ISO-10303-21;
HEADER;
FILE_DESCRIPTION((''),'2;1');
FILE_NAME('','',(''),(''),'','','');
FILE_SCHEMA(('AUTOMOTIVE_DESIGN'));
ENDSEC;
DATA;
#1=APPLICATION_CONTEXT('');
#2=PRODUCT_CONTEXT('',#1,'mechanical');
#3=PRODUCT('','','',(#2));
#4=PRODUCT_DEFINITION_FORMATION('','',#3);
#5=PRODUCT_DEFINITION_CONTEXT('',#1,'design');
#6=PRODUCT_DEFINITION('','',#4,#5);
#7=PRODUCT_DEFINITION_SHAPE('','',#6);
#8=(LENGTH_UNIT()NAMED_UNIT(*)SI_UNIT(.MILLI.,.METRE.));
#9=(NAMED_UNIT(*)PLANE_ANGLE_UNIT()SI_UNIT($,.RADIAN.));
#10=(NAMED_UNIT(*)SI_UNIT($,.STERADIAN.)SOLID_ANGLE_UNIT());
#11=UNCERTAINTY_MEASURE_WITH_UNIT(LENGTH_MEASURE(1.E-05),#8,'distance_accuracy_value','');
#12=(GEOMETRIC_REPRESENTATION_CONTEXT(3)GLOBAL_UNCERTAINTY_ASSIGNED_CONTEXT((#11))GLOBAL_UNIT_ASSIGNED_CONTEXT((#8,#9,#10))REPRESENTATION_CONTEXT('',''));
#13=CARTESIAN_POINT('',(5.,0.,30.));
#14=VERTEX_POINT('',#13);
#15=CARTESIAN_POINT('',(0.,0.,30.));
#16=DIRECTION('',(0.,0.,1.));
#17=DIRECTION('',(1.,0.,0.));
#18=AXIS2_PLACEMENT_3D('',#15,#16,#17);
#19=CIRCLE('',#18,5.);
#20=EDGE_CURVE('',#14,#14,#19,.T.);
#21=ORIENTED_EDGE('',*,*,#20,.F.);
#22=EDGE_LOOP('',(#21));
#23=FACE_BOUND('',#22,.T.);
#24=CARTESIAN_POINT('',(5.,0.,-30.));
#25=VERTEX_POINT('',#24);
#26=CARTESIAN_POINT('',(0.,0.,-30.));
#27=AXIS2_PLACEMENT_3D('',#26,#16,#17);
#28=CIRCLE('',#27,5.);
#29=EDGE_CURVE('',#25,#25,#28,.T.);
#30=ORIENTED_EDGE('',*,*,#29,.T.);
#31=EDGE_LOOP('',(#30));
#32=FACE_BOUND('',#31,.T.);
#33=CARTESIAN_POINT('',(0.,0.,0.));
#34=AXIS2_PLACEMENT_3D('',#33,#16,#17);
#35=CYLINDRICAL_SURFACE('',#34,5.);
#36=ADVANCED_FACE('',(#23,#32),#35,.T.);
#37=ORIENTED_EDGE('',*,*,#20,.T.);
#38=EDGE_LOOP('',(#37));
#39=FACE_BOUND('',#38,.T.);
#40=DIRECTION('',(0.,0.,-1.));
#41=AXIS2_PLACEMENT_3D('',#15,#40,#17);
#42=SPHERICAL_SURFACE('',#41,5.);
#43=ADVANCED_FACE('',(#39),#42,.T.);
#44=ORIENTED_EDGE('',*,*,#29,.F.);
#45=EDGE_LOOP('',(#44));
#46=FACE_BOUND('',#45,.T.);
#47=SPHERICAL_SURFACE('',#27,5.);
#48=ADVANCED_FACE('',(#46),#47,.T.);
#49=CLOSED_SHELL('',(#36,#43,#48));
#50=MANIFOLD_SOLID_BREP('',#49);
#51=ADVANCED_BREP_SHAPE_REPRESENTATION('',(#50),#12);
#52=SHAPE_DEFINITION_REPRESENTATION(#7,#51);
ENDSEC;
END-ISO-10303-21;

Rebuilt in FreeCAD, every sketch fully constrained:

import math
import FreeCAD as App
import Part
import Sketcher
from FreeCAD import Vector
Q = App.Units.Quantity

doc = App.newDocument("Part")
params = doc.addObject("Spreadsheet::Sheet", "Params")
for row, (alias, value) in enumerate([
    ("sketch1_radius", "5 mm"),
    ("sketch1_height", "35 mm"),
    ("revolution_angle", "360 deg"),
], start=1):
    params.set(f"A{row}", alias)
    params.set(f"B{row}", "=" + value)
    params.setAlias(f"B{row}", alias)

body = doc.addObject("PartDesign::Body", "Body")

# Sketch on XZ plane
sketch1 = doc.addObject("Sketcher::SketchObject", "Sketch")
body.addObject(sketch1)
sketch1.AttachmentSupport = (doc.XZ_Plane, [""])
sketch1.MapMode = "FlatFace"
sketch1.addGeometry(Part.LineSegment(Vector(0, 0, 0), Vector(0, -35, 0)), False)
sketch1.addGeometry(Part.ArcOfCircle(Part.Circle(Vector(0, -30, 0), Vector(0, 0, 1), 5), math.radians(180), math.radians(270)), False)
sketch1.addGeometry(Part.LineSegment(Vector(-5, -30, 0), Vector(-5, 0, 0)), False)
sketch1.addGeometry(Part.LineSegment(Vector(-5, 0, 0), Vector(0, 0, 0)), False)
sketch1.addConstraint(Sketcher.Constraint("Coincident", 0, 2, 1, 2))
sketch1.addConstraint(Sketcher.Constraint("Tangent", 1, 1, 2, 1))
sketch1.addConstraint(Sketcher.Constraint("Coincident", 2, 2, 3, 1))
sketch1.addConstraint(Sketcher.Constraint("Coincident", 3, 2, 0, 1))
sketch1.addConstraint(Sketcher.Constraint("Vertical", 0))
sketch1.addConstraint(Sketcher.Constraint("Vertical", 2))
sketch1.addConstraint(Sketcher.Constraint("Horizontal", 3))
sketch1.addConstraint(Sketcher.Constraint("Coincident", 3, 2, -1, 1))
sketch1.addConstraint(Sketcher.Constraint("PointOnObject", 1, 3, -2))
sketch1.addConstraint(Sketcher.Constraint("Radius", 1, Q("5 mm")))
sketch1.addConstraint(Sketcher.Constraint("DistanceY", 0, 2, 0, 1, Q("35 mm")))
sketch1.setExpression("Constraints[9]", "Params.sketch1_radius")
sketch1.setExpression("Constraints[10]", "Params.sketch1_height")
revolution = doc.addObject("PartDesign::Revolution", "Revolution")
body.addObject(revolution)
revolution.Profile = sketch1
revolution.ReferenceAxis = (sketch1, ["V_Axis"])
revolution.setExpression("Angle", "Params.revolution_angle")
doc.recompute()

mirrored = doc.addObject("PartDesign::Mirrored", "Mirrored")
body.addObject(mirrored)
mirrored.Originals = [revolution]
mirrored.MirrorPlane = (doc.XY_Plane, [""])
body.Tip = mirrored

doc.recompute()
